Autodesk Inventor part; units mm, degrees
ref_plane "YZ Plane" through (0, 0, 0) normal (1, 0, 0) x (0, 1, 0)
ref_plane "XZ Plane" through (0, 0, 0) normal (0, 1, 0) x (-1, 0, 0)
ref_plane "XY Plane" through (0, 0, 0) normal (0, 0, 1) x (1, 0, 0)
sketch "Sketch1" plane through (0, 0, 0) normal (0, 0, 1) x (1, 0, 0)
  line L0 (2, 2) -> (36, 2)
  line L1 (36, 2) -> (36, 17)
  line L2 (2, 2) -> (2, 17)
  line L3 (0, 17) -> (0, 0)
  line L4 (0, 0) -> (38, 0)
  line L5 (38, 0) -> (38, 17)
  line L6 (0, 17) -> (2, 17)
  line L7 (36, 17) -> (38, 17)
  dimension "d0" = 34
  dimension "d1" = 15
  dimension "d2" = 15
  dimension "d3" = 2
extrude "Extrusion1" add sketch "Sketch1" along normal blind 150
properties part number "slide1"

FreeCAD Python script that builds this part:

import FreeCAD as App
import Part
import Sketcher

V = App.Vector
Q = App.Units.Quantity

doc = App.newDocument("Part")
body = doc.addObject("PartDesign::Body", "Body")

# Sketch on XY plane
sketch1 = doc.addObject("Sketcher::SketchObject", "Sketch")
body.addObject(sketch1)
sketch1.AttachmentSupport = (doc.XY_Plane, [""])
sketch1.MapMode = "FlatFace"
sketch1.addGeometry([
    Part.LineSegment(V(36, 2, 0), V(2, 2, 0)),  # 0
    Part.LineSegment(V(2, 2, 0), V(2, 17, 0)),  # 1
    Part.LineSegment(V(2, 17, 0), V(0, 17, 0)),  # 2
    Part.LineSegment(V(0, 17, 0), V(0, 0, 0)),  # 3
    Part.LineSegment(V(0, 0, 0), V(38, 0, 0)),  # 4
    Part.LineSegment(V(38, 0, 0), V(38, 17, 0)),  # 5
    Part.LineSegment(V(38, 17, 0), V(36, 17, 0)),  # 6
    Part.LineSegment(V(36, 17, 0), V(36, 2, 0)),  # 7
], False)
sketch1.addConstraint([
    Sketcher.Constraint("Coincident", 0, 2, 1, 1),
    Sketcher.Constraint("Coincident", 1, 2, 2, 1),
    Sketcher.Constraint("Coincident", 2, 2, 3, 1),
    Sketcher.Constraint("Coincident", 3, 2, 4, 1),
    Sketcher.Constraint("Coincident", 4, 2, 5, 1),
    Sketcher.Constraint("Coincident", 5, 2, 6, 1),
    Sketcher.Constraint("Coincident", 6, 2, 7, 1),
    Sketcher.Constraint("Coincident", 7, 2, 0, 1),
    Sketcher.Constraint("Horizontal", 0),
    Sketcher.Constraint("Vertical", 1),
    Sketcher.Constraint("Horizontal", 2),
    Sketcher.Constraint("Vertical", 3),
    Sketcher.Constraint("Horizontal", 4),
    Sketcher.Constraint("Vertical", 5),
    Sketcher.Constraint("Horizontal", 6),
    Sketcher.Constraint("Vertical", 7),
    Sketcher.Constraint("Coincident", 3, 2, -1, 1),
    Sketcher.Constraint("Horizontal", 2, 2, 5, 2),
    Sketcher.Constraint("Equal", 2, 6),
    Sketcher.Constraint("DistanceX", 0, 2, 0, 1, Q("34 mm")),
    Sketcher.Constraint("DistanceX", 2, 2, 2, 1, Q("2 mm")),
    Sketcher.Constraint("DistanceY", 1, 1, 1, 2, Q("15 mm")),
    Sketcher.Constraint("DistanceY", -1, 1, 0, 2, Q("2 mm")),
])
pad1 = doc.addObject("PartDesign::Pad", "Pad")
body.addObject(pad1)
pad1.Profile = sketch1
pad1.Length = 150

doc.recompute()
